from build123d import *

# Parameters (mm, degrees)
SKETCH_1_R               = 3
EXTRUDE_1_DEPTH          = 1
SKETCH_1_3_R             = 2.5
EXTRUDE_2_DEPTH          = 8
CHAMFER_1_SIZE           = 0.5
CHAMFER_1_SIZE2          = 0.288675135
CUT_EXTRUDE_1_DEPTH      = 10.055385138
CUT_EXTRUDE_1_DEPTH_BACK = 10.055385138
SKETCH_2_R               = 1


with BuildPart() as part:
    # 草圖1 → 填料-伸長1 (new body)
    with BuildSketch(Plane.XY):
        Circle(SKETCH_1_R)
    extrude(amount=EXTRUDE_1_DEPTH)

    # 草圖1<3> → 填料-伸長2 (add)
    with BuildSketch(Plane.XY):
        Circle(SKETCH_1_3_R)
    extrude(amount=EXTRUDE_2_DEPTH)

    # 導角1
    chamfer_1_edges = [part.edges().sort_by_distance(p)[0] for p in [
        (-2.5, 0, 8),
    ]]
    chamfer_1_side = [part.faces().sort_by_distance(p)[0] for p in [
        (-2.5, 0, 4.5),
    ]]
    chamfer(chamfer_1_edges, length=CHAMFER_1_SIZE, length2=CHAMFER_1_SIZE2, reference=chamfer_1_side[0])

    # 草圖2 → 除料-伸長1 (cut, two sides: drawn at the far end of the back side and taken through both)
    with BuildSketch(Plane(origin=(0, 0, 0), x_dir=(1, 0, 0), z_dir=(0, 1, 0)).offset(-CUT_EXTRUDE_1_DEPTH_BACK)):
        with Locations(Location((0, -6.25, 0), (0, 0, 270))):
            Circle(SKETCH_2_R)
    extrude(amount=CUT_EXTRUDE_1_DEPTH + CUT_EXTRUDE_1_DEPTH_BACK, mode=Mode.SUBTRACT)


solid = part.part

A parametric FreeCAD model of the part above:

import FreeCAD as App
import Part
import Sketcher
from FreeCAD import Vector


def edges_at(feature, points):
    """Names of the edges that pass closest to the given points."""
    edges = feature.Shape.Edges
    near = lambda p: min(range(len(edges)), key=lambda i: edges[i].distToShape(Part.Vertex(*p))[0])
    return sorted({f"Edge{near(p) + 1}" for p in points})

doc = App.newDocument("Part")
body = doc.addObject("PartDesign::Body", "Body")

# Sketch on XY plane
sketch1 = body.newObject("Sketcher::SketchObject", "Sketch")
sketch1.AttachmentSupport = (doc.getObject("XY_Plane"), [""])
sketch1.MapMode = "FlatFace"
sketch1.addGeometry(Part.Circle(Vector(0, 0, 0), Vector(0, 0, 1), 3), False)
sketch1.addConstraint(Sketcher.Constraint("Coincident", 0, 3, -1, 1))
sketch1.addConstraint(Sketcher.Constraint("Diameter", 0, 6.0))
pad1 = body.newObject("PartDesign::Pad", "Pad")
pad1.Profile = sketch1
pad1.Length = 1

# Sketch on XY plane
sketch2 = body.newObject("Sketcher::SketchObject", "Sketch001")
sketch2.AttachmentSupport = (doc.getObject("XY_Plane"), [""])
sketch2.MapMode = "FlatFace"
sketch2.addGeometry(Part.Circle(Vector(0, 0, 0), Vector(0, 0, 1), 2.5), False)
sketch2.addConstraint(Sketcher.Constraint("Coincident", 0, 3, -1, 1))
sketch2.addConstraint(Sketcher.Constraint("Diameter", 0, 5.0))
pad2 = body.newObject("PartDesign::Pad", "Pad001")
pad2.Profile = sketch2
pad2.Length = 8
doc.recompute()

chamfer = body.newObject("PartDesign::Chamfer", "Chamfer")
chamfer.Base = (pad2, edges_at(pad2, [(-2.5, 0, 8)]))
chamfer.ChamferType = "Two distances"
chamfer.Size = 0.5
chamfer.Size2 = 0.288675

# Sketch on XZ plane
sketch3 = body.newObject("Sketcher::SketchObject", "Sketch002")
sketch3.AttachmentSupport = (doc.getObject("XZ_Plane"), [""])
sketch3.MapMode = "FlatFace"
sketch3.addGeometry(Part.Circle(Vector(0, 6.25, 0), Vector(0, 0, 1), 1), False)
sketch3.addConstraint(Sketcher.Constraint("PointOnObject", 0, 3, -2))
sketch3.addConstraint(Sketcher.Constraint("Diameter", 0, 2.0))
sketch3.addConstraint(Sketcher.Constraint("DistanceY", -1, 1, 0, 3, 6.25))
pocket1 = body.newObject("PartDesign::Pocket", "Pocket")
pocket1.Profile = sketch3
pocket1.Type = "ThroughAll"
pocket1.Midplane = True

doc.recompute()
